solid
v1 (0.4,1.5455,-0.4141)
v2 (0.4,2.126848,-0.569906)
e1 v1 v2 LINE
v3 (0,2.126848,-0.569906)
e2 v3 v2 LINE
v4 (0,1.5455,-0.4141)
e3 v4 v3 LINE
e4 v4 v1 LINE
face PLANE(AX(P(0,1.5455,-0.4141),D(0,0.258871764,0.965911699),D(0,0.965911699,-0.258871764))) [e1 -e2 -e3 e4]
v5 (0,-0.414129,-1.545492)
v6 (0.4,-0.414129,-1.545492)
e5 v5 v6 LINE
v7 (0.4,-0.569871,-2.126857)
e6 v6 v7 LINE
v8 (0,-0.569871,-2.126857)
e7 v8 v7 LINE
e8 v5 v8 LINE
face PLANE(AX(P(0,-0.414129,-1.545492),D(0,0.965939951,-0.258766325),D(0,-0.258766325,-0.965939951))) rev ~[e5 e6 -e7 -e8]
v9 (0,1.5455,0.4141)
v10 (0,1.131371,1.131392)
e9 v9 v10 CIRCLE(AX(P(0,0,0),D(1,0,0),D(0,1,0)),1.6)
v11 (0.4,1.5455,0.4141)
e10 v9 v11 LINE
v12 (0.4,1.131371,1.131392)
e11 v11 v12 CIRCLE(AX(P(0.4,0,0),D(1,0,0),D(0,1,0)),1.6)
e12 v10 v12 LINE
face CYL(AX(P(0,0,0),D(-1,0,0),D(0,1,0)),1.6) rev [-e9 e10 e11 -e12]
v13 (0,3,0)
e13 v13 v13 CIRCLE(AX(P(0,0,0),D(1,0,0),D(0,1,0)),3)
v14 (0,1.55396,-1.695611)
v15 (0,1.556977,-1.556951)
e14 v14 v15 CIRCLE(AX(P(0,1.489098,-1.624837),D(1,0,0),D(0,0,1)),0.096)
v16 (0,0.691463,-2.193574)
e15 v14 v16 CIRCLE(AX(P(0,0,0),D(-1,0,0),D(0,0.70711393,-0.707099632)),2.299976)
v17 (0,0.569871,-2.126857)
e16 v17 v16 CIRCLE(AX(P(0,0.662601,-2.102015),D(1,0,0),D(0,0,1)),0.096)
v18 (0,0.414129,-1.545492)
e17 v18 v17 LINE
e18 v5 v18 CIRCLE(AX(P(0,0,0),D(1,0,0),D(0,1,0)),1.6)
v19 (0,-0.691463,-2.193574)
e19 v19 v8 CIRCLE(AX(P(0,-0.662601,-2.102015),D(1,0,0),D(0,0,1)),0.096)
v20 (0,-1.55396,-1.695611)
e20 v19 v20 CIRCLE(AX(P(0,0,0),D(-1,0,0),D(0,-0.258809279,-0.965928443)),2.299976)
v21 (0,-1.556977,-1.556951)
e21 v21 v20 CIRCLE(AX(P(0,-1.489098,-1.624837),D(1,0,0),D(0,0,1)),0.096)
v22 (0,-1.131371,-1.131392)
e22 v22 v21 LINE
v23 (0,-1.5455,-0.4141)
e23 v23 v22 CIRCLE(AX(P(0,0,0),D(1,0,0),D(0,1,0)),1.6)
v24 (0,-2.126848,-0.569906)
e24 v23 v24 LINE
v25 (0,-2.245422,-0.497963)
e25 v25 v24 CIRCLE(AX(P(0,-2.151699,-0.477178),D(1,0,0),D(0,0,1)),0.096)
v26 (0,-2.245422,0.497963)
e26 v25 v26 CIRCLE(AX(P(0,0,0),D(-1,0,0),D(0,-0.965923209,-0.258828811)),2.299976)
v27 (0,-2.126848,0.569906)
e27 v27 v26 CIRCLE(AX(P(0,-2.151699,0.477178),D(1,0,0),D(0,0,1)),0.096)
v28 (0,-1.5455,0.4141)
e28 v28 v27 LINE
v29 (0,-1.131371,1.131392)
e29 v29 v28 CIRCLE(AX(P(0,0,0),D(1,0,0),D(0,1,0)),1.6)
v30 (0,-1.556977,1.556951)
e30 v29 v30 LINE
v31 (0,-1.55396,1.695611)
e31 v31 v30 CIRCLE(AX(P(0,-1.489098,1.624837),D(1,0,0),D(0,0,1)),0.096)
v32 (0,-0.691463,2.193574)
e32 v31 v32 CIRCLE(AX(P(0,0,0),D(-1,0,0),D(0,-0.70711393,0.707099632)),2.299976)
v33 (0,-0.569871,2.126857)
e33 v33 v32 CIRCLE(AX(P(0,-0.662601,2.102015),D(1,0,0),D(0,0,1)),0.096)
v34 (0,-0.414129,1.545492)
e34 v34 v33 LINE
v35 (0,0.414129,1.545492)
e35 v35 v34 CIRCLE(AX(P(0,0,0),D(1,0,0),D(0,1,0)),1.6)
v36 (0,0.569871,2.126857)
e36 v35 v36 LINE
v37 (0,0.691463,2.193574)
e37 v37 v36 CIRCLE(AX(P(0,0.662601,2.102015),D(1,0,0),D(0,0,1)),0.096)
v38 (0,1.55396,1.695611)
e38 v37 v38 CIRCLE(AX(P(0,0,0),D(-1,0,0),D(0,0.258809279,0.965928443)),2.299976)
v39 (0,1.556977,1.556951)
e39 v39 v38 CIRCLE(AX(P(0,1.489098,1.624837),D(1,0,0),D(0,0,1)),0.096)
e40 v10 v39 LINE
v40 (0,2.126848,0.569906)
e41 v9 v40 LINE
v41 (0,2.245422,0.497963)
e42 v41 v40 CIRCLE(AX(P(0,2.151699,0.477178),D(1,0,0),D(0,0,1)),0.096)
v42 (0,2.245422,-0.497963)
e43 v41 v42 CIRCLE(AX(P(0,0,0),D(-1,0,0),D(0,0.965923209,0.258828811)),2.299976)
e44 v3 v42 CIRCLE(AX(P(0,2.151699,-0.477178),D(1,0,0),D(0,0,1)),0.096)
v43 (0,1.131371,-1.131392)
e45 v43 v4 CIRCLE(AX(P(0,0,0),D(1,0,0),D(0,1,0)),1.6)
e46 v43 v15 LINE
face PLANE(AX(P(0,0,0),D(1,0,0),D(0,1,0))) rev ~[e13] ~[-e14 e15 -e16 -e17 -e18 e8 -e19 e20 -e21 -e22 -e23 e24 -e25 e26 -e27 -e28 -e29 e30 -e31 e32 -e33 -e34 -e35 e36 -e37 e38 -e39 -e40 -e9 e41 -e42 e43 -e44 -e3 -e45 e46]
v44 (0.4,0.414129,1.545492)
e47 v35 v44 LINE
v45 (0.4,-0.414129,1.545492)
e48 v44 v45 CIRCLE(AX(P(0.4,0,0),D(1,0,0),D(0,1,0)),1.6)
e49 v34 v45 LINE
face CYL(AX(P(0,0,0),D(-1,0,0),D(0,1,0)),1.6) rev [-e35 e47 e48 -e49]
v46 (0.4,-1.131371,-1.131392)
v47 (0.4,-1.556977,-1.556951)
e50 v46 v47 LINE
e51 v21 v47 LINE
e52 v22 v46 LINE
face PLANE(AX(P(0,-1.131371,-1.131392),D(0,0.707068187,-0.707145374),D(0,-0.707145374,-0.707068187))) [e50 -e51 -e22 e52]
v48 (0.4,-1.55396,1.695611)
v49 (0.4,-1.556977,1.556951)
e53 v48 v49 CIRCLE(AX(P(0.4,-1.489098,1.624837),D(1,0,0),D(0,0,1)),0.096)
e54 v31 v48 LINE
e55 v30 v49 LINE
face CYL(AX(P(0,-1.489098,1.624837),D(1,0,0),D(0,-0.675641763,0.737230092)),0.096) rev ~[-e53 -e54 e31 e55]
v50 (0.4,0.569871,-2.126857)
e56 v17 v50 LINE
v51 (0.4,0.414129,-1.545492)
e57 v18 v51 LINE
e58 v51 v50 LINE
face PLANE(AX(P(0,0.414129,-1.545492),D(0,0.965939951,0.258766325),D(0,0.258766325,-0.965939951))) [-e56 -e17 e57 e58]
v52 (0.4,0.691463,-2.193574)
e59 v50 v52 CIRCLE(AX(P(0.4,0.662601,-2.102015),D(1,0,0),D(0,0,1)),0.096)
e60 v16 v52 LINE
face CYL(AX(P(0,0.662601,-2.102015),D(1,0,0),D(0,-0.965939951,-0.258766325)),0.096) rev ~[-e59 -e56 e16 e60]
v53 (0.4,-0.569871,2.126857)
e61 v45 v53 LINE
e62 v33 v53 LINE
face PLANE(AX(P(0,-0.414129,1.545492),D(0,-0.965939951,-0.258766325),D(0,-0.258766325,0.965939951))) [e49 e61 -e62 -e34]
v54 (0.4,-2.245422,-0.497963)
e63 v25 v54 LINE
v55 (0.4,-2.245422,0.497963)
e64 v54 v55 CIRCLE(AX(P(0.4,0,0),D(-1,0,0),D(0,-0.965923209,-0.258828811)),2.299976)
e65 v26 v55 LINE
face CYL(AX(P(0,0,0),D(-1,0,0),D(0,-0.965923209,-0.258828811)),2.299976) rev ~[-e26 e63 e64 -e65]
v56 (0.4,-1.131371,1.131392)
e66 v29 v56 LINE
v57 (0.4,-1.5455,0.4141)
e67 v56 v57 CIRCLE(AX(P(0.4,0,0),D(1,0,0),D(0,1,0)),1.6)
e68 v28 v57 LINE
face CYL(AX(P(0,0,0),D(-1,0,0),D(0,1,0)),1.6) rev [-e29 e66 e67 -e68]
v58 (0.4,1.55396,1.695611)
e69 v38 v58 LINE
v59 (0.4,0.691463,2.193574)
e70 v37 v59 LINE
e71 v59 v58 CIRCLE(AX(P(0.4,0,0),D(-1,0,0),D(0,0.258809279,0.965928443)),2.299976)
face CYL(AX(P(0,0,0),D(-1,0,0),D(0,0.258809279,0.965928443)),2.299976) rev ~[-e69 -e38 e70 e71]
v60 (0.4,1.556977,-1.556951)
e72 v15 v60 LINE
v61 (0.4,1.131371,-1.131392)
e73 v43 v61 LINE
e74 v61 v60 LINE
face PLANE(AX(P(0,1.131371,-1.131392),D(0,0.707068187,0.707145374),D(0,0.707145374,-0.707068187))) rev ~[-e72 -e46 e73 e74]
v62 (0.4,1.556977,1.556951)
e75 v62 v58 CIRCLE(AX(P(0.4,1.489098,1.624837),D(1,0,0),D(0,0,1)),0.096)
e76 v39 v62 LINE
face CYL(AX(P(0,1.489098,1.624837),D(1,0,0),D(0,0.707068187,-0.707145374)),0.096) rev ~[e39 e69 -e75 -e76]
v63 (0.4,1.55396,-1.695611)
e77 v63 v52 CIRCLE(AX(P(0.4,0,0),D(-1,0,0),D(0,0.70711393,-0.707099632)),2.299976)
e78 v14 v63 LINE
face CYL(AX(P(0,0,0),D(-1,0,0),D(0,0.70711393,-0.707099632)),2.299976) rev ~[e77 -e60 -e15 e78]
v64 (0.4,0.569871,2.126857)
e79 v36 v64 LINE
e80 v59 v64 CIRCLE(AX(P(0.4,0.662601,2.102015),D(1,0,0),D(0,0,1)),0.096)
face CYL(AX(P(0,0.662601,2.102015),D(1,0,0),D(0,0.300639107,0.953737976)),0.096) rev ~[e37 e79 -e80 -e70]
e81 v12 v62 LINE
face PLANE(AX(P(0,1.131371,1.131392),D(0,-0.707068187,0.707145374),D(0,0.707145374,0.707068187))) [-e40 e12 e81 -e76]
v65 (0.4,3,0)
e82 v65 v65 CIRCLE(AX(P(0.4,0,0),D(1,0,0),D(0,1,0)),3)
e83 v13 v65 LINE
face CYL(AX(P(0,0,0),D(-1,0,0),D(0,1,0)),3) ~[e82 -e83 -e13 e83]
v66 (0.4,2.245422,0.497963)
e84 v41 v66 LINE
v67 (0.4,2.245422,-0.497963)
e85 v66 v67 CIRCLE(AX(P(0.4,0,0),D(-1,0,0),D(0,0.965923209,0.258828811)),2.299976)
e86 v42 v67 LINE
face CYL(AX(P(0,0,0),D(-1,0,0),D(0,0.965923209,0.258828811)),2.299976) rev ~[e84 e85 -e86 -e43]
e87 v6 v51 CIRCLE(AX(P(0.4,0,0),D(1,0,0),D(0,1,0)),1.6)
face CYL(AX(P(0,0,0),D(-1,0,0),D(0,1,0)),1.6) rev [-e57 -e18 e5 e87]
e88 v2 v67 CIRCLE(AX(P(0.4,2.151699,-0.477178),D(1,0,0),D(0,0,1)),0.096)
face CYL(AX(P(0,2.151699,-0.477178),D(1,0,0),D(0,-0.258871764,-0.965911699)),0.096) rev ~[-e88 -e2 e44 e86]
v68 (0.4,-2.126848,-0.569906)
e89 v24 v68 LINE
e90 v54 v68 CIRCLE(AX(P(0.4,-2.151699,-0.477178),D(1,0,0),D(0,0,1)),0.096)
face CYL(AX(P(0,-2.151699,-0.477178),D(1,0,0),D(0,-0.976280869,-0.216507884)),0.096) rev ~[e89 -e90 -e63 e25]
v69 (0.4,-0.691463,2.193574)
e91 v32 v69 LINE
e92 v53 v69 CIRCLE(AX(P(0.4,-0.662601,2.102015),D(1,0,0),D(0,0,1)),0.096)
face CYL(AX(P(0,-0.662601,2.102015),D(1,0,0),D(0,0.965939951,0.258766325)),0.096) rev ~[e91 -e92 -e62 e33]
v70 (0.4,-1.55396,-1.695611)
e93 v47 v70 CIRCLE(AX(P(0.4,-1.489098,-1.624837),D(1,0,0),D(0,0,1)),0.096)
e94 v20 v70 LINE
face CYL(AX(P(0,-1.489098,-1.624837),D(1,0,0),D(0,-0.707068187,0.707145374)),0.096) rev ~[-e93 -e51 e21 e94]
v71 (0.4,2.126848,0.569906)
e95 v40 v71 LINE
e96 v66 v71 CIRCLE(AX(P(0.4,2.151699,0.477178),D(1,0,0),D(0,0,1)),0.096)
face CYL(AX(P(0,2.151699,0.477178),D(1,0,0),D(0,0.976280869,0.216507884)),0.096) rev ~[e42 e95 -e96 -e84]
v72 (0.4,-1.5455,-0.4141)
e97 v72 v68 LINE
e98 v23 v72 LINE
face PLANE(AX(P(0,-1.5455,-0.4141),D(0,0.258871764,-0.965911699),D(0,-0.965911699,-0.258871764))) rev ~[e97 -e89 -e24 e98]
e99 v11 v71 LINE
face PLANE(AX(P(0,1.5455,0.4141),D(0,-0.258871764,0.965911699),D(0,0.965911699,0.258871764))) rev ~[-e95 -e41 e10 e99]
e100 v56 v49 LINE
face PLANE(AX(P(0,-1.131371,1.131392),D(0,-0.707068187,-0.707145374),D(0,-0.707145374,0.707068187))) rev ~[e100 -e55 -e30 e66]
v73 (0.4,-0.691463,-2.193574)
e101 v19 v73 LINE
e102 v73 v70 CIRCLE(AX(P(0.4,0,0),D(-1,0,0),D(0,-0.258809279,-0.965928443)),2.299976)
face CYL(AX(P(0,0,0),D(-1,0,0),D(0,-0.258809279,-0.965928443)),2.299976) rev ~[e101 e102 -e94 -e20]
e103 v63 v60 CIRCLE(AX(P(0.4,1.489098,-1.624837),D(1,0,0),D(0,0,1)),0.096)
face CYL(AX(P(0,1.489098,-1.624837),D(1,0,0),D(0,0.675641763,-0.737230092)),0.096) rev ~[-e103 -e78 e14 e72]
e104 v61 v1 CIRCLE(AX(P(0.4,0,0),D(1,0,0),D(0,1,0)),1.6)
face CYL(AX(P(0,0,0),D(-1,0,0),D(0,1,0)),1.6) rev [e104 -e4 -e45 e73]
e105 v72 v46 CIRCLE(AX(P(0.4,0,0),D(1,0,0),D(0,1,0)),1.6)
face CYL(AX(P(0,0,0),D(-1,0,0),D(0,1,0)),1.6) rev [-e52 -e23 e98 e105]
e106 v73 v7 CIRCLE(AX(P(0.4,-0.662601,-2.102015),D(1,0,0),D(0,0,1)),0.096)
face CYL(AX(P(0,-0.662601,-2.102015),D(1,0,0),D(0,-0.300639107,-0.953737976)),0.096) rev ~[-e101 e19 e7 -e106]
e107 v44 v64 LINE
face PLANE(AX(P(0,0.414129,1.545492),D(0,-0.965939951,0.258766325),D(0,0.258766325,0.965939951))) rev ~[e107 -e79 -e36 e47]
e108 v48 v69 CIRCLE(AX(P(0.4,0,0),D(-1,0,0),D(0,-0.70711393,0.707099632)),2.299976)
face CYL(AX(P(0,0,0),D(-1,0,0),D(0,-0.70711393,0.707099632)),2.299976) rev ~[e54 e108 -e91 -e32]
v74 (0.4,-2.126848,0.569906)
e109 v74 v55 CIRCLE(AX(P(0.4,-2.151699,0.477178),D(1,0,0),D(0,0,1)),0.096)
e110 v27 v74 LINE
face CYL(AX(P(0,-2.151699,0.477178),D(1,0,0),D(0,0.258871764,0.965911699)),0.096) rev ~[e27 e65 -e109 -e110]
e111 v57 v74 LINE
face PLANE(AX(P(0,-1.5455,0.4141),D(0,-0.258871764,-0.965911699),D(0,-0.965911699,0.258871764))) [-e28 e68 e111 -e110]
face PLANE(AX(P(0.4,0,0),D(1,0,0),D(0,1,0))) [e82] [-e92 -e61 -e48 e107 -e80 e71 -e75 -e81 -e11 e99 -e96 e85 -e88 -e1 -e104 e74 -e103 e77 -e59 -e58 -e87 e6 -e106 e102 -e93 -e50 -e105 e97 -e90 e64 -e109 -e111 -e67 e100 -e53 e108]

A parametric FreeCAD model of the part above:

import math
import FreeCAD as App
import Part
import Sketcher
from FreeCAD import Vector


def edges_at(feature, points):
    """Names of the edges that pass closest to the given points."""
    edges = feature.Shape.Edges
    near = lambda p: min(range(len(edges)), key=lambda i: edges[i].distToShape(Part.Vertex(*p))[0])
    return sorted({f"Edge{near(p) + 1}" for p in points})

doc = App.newDocument("Part")
body = doc.addObject("PartDesign::Body", "Body")

sketch1 = body.newObject("Sketcher::SketchObject", "Sketch")
sketch1.AttachmentSupport = (doc.getObject("YZ_Plane"), [""])
sketch1.MapMode = "FlatFace"
sketch1.addGeometry([
    Part.Circle(Vector(0, 0, 0), Vector(0, 0, 1), 3),
    Part.Circle(Vector(0, 0, 0), Vector(0, 0, 1), 1.6),
], False)
sketch1.addConstraint([
    Sketcher.Constraint("Coincident", 0, 3, -1, 1),
    Sketcher.Constraint("Coincident", 1, 3, -1, 1),
    Sketcher.Constraint("Diameter", 0, 6.0),
    Sketcher.Constraint("Diameter", 1, 3.2),
])
pad1 = body.newObject("PartDesign::Pad", "Pad")
pad1.Profile = sketch1
pad1.Length = 0.4

sketch2 = body.newObject("Sketcher::SketchObject", "Sketch001")
sketch2.AttachmentSupport = (doc.getObject("YZ_Plane"), [""])
sketch2.MapMode = "FlatFace"
sketch2.addGeometry([
    Part.ArcOfCircle(Part.Circle(Vector(0, 0, 0), Vector(0, 0, 1), 1.6), math.radians(-15), math.radians(15)),
    Part.LineSegment(Vector(1.5, 0.4, 0), Vector(2.2, 0.6, 0)),
    Part.ArcOfCircle(Part.Circle(Vector(0, 0, 0), Vector(0, 0, 1), 2.3), math.radians(-15), math.radians(15)),
    Part.LineSegment(Vector(2.2, -0.6, 0), Vector(1.5, -0.4, 0)),
], False)
sketch2.addConstraint([
    Sketcher.Constraint("Coincident", 0, 2, 1, 1),
    Sketcher.Constraint("Coincident", 1, 2, 2, 2),
    Sketcher.Constraint("Coincident", 2, 1, 3, 1),
    Sketcher.Constraint("Coincident", 3, 2, 0, 1),
    Sketcher.Constraint("Coincident", 0, 3, -1, 1),
    Sketcher.Constraint("Coincident", 2, 3, -1, 1),
    Sketcher.Constraint("Vertical", 1, 2, 2, 1),
    Sketcher.Constraint("Vertical", 0, 2, 3, 2),
    Sketcher.Constraint("Radius", 2, 2.3),
    Sketcher.Constraint("Radius", 0, 1.6),
    Sketcher.Constraint("DistanceY", -1, 1, 0, 2, 0.414),
    Sketcher.Constraint("DistanceX", 0, 2, 1, 2, 0.676),
])
pocket1 = body.newObject("PartDesign::Pocket", "Pocket")
pocket1.Profile = sketch2
pocket1.Length = 0.4
pocket1.Reversed = True
doc.recompute()

fillet = body.newObject("PartDesign::Fillet", "Fillet")
fillet.Base = (pocket1, edges_at(pocket1, [(0.2, 2.222, 0.595), (0.2, 2.222, -0.595)]))
fillet.Radius = 0.096
doc.recompute()

polarpattern = body.newObject("PartDesign::PolarPattern", "PolarPattern")
polarpattern.Originals = [pocket1, fillet]
polarpattern.Axis = (doc.getObject("X_Axis"), [""])
polarpattern.Angle = 360
polarpattern.Occurrences = 6
body.Tip = polarpattern

doc.recompute()
